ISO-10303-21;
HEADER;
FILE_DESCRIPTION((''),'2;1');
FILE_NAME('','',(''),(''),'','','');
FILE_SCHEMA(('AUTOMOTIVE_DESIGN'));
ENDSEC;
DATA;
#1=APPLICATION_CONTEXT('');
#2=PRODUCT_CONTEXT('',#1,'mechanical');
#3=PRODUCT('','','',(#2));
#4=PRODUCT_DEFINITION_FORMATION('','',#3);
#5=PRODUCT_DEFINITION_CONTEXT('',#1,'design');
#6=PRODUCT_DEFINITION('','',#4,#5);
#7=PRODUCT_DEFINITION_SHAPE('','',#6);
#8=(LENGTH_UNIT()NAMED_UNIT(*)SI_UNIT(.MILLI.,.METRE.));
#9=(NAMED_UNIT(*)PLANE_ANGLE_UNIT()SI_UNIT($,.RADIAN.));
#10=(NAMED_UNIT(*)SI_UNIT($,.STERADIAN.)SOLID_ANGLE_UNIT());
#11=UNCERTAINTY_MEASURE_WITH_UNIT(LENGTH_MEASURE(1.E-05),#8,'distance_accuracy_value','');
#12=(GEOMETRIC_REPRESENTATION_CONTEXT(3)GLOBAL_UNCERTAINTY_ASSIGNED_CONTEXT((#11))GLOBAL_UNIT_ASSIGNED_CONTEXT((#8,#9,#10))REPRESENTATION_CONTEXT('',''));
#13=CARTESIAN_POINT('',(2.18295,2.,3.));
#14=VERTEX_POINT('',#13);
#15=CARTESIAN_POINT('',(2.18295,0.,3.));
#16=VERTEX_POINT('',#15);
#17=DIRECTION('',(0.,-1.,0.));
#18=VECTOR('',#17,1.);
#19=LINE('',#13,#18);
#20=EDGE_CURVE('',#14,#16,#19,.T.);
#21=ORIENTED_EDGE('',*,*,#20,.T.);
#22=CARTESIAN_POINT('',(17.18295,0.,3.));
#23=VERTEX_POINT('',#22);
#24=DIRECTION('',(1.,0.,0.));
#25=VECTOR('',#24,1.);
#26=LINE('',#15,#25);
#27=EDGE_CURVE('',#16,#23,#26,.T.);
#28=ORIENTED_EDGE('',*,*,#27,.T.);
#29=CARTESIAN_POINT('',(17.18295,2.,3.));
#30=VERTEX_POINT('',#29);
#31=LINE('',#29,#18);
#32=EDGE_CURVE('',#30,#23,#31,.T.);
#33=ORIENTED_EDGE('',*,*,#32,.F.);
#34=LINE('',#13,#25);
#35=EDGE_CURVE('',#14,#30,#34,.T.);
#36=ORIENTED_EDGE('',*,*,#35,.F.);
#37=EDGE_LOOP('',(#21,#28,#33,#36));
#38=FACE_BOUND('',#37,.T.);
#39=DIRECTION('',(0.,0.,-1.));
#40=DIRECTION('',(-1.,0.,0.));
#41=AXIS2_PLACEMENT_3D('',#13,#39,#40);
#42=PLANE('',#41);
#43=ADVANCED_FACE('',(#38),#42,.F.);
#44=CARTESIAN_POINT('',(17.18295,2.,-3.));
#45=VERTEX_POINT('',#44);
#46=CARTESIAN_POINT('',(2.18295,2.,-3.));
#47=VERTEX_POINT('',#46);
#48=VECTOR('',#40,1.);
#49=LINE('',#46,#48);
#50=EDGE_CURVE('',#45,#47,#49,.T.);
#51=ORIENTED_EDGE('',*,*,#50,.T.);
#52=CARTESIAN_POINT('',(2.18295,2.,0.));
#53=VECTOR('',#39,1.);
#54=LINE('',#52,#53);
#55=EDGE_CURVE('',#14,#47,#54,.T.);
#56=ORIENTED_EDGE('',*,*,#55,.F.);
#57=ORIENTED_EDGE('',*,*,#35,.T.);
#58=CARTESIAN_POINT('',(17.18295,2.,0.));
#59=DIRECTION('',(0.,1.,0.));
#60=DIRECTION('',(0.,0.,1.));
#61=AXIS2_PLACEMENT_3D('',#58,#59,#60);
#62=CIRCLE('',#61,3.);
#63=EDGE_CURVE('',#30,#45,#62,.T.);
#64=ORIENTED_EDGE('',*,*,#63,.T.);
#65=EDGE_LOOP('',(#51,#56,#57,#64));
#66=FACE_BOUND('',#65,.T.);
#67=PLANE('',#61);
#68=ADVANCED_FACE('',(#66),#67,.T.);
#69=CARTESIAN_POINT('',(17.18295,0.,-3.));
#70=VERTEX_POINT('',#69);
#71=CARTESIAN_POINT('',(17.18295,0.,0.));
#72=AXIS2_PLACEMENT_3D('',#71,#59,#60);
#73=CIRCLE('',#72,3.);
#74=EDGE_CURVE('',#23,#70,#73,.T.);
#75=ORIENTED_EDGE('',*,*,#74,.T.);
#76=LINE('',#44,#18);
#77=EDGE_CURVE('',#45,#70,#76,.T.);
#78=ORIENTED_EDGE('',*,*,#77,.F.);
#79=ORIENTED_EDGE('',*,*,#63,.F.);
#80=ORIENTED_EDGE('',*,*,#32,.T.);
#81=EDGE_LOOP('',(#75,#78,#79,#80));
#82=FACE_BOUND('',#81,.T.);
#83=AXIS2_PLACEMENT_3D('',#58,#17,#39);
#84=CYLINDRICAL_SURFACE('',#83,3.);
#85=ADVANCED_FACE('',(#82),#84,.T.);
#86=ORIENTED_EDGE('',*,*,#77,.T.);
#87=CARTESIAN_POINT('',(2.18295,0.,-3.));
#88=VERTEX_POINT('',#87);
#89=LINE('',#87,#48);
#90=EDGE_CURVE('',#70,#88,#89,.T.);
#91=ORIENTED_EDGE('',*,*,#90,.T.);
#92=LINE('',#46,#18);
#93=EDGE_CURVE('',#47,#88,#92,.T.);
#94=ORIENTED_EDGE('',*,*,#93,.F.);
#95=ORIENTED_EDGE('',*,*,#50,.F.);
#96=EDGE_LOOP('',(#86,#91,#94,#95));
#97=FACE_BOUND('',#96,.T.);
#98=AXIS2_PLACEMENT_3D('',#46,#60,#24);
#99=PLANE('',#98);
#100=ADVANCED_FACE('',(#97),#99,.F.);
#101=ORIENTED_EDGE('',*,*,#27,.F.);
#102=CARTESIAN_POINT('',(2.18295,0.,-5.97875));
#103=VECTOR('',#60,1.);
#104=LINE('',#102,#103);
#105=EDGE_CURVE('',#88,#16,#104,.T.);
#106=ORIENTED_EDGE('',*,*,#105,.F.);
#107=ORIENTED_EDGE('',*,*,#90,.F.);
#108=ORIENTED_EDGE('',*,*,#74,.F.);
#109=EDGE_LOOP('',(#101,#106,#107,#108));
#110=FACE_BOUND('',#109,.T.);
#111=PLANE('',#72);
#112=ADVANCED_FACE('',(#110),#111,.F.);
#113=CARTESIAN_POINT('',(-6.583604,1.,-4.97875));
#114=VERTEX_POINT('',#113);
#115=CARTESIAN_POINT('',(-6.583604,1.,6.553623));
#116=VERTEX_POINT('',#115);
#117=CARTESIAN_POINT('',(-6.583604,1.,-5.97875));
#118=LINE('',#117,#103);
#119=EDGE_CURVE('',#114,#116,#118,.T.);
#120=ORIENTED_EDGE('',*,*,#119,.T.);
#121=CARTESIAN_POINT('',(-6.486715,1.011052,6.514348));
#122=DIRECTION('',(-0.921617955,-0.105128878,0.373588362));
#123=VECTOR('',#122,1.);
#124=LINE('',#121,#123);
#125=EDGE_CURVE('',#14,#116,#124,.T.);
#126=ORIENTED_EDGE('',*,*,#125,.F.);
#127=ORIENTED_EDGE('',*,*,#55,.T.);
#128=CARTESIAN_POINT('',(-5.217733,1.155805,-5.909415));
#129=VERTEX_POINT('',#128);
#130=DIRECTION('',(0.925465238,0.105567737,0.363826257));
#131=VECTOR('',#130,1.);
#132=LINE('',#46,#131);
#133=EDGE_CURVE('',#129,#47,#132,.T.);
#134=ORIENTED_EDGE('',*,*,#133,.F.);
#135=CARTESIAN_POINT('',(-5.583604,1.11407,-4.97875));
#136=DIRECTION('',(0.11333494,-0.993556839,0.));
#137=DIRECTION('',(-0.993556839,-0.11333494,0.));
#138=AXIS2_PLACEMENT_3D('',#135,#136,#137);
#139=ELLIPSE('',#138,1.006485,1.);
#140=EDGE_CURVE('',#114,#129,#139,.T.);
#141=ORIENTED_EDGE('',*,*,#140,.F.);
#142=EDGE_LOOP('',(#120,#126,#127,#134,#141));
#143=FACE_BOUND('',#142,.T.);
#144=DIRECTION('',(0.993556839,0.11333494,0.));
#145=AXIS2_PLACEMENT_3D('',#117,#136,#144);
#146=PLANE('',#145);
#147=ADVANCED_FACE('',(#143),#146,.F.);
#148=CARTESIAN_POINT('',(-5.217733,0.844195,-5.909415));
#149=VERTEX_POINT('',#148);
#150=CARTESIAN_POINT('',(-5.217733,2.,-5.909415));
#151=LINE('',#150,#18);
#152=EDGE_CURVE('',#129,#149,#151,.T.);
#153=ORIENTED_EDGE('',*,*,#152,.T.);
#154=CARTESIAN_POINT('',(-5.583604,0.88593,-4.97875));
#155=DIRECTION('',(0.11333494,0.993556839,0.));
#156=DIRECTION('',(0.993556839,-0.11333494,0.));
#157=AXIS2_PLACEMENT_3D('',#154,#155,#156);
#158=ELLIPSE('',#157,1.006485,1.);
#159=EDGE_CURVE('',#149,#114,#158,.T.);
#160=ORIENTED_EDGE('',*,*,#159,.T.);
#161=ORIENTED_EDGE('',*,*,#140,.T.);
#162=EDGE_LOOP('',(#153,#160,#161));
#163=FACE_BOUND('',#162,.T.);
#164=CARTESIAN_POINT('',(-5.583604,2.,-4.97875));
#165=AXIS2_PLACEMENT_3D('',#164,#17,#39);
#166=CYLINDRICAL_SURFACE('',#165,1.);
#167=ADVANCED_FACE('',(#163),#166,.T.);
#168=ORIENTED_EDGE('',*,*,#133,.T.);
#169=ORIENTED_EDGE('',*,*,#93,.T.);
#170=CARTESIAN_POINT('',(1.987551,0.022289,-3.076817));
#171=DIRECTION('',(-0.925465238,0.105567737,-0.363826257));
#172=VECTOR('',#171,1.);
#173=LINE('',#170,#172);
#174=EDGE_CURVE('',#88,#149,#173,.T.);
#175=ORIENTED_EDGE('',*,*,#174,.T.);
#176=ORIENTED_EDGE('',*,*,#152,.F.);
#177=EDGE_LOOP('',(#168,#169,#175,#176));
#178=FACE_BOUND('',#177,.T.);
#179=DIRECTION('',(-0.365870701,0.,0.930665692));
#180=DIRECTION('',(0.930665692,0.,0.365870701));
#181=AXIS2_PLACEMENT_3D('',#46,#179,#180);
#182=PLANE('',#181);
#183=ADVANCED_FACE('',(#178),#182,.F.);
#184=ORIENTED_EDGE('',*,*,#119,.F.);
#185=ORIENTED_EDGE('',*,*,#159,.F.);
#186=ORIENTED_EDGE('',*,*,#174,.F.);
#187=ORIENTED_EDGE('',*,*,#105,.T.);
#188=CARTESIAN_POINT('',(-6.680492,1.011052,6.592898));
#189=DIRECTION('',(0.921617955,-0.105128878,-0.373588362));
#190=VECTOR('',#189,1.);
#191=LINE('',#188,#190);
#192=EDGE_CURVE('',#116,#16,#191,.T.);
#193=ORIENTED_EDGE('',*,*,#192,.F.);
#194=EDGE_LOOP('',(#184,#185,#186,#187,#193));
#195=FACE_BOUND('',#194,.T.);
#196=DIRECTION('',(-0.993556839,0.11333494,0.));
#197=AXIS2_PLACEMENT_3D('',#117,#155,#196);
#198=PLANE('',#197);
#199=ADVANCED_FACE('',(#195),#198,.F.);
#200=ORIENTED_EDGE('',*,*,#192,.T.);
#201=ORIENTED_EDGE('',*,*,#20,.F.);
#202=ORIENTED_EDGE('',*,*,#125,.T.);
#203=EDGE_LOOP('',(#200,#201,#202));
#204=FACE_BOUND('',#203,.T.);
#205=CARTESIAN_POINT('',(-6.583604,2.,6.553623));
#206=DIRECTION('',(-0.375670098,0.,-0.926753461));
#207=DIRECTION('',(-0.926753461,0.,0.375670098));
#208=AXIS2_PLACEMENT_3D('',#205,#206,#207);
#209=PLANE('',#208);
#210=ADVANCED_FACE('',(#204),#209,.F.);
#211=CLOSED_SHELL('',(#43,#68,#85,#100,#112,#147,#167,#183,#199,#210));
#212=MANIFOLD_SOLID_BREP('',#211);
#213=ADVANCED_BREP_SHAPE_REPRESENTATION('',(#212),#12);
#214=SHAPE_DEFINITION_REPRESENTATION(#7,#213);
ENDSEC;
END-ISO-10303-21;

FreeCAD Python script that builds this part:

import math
import FreeCAD as App
import Part
import Sketcher

V = App.Vector
Q = App.Units.Quantity

doc = App.newDocument("Part")
body = doc.addObject("PartDesign::Body", "Body")

# Sketch on XZ plane
sketch1 = doc.addObject("Sketcher::SketchObject", "Sketch")
body.addObject(sketch1)
sketch1.AttachmentSupport = (doc.XZ_Plane, [""])
sketch1.MapMode = "FlatFace"
sketch1.addGeometry([
    Part.LineSegment(V(2.18295, -3, 0), V(-5.217733, -5.909415, 0)),  # 0
    Part.ArcOfCircle(Part.Circle(V(-5.583604, -4.97875, 0), V(0, 0, 1), 1), math.radians(180), math.radians(291.461177)),  # 1
    Part.LineSegment(V(-6.583604, -4.97875, 0), V(-6.583604, 6.553623, 0)),  # 2
    Part.LineSegment(V(-6.583604, 6.553623, 0), V(2.18295, 3, 0)),  # 3
    Part.LineSegment(V(2.18295, 3, 0), V(17.18295, 3, 0)),  # 4
    Part.ArcOfCircle(Part.Circle(V(17.18295, 0, 0), V(0, 0, 1), 3), math.radians(-90), math.radians(90)),  # 5
    Part.LineSegment(V(17.18295, -3, 0), V(2.18295, -3, 0)),  # 6
], False)
sketch1.addConstraint([
    Sketcher.Constraint("Tangent", 0, 2, 1, 2),
    Sketcher.Constraint("Tangent", 1, 1, 2, 1),
    Sketcher.Constraint("Coincident", 2, 2, 3, 1),
    Sketcher.Constraint("Coincident", 3, 2, 4, 1),
    Sketcher.Constraint("Tangent", 4, 2, 5, 2),
    Sketcher.Constraint("Tangent", 5, 1, 6, 1),
    Sketcher.Constraint("Coincident", 6, 2, 0, 1),
    Sketcher.Constraint("Vertical", 2),
    Sketcher.Constraint("Horizontal", 4),
    Sketcher.Constraint("Horizontal", 6),
    Sketcher.Constraint("Symmetric", 3, 2, 6, 2, -1),
    Sketcher.Constraint("Radius", 1, Q("1 mm")),
    Sketcher.Constraint("Radius", 5, Q("3 mm")),
    Sketcher.Constraint("DistanceX", 4, 1, 4, 2, Q("15 mm")),
    Sketcher.Constraint("Distance", 0, Q("7.952032 mm")),
    Sketcher.Constraint("DistanceY", 2, 1, 2, 2, Q("11.532372 mm")),
    Sketcher.Constraint("DistanceY", 1, 3, -1, 1, Q("4.97875 mm")),
    Sketcher.Constraint("DistanceX", -1, 1, 5, 3, Q("17.18295 mm")),
])
pad1 = doc.addObject("PartDesign::Pad", "Pad")
body.addObject(pad1)
pad1.Profile = sketch1
pad1.Length = 2
pad1.Reversed = True

# Sketch on XY plane
sketch2 = doc.addObject("Sketcher::SketchObject", "Sketch001")
body.addObject(sketch2)
sketch2.AttachmentSupport = (doc.XY_Plane, [""])
sketch2.MapMode = "FlatFace"
sketch2.addGeometry([
    Part.LineSegment(V(-6.583604, 1, 0), V(2.18295, 2, 0)),
    Part.LineSegment(V(2.18295, 2, 0), V(-6.583604, 2, 0)),
    Part.LineSegment(V(-6.583604, 2, 0), V(-6.583604, 1, 0)),
], False)
sketch2.addConstraint([
    Sketcher.Constraint("Coincident", 0, 2, 1, 1),
    Sketcher.Constraint("Coincident", 1, 2, 2, 1),
    Sketcher.Constraint("Coincident", 2, 2, 0, 1),
    Sketcher.Constraint("Horizontal", 1),
    Sketcher.Constraint("Vertical", 2),
    Sketcher.Constraint("DistanceY", 2, 2, 2, 1, Q("1 mm")),
    Sketcher.Constraint("DistanceY", -1, 1, 0, 2, Q("2 mm")),
    Sketcher.Constraint("DistanceX", 1, 2, 1, 1, Q("8.766554 mm")),
    Sketcher.Constraint("DistanceX", -1, 1, 0, 2, Q("2.18295 mm")),
])
pocket1 = doc.addObject("PartDesign::Pocket", "Pocket")
body.addObject(pocket1)
pocket1.Profile = sketch2
pocket1.Type = "ThroughAll"
pocket1.Midplane = True

# Sketch on XY plane
sketch3 = doc.addObject("Sketcher::SketchObject", "Sketch002")
body.addObject(sketch3)
sketch3.AttachmentSupport = (doc.XY_Plane, [""])
sketch3.MapMode = "FlatFace"
sketch3.addGeometry([
    Part.LineSegment(V(-6.583604, 1, 0), V(-6.583604, 0, 0)),
    Part.LineSegment(V(-6.583604, 0, 0), V(2.18295, 0, 0)),
    Part.LineSegment(V(2.18295, 0, 0), V(-6.583604, 1, 0)),
], False)
sketch3.addConstraint([
    Sketcher.Constraint("Coincident", 0, 2, 1, 1),
    Sketcher.Constraint("Coincident", 1, 2, 2, 1),
    Sketcher.Constraint("Coincident", 2, 2, 0, 1),
    Sketcher.Constraint("Vertical", 0),
    Sketcher.Constraint("Horizontal", 1),
    Sketcher.Constraint("PointOnObject", 0, 2, -1),
    Sketcher.Constraint("DistanceY", 0, 2, 0, 1, Q("1 mm")),
    Sketcher.Constraint("DistanceX", 1, 1, 1, 2, Q("8.766554 mm")),
    Sketcher.Constraint("DistanceX", -1, 1, 1, 2, Q("2.18295 mm")),
])
pocket2 = doc.addObject("PartDesign::Pocket", "Pocket001")
body.addObject(pocket2)
pocket2.Profile = sketch3
pocket2.Type = "ThroughAll"
pocket2.Midplane = True

doc.recompute()
